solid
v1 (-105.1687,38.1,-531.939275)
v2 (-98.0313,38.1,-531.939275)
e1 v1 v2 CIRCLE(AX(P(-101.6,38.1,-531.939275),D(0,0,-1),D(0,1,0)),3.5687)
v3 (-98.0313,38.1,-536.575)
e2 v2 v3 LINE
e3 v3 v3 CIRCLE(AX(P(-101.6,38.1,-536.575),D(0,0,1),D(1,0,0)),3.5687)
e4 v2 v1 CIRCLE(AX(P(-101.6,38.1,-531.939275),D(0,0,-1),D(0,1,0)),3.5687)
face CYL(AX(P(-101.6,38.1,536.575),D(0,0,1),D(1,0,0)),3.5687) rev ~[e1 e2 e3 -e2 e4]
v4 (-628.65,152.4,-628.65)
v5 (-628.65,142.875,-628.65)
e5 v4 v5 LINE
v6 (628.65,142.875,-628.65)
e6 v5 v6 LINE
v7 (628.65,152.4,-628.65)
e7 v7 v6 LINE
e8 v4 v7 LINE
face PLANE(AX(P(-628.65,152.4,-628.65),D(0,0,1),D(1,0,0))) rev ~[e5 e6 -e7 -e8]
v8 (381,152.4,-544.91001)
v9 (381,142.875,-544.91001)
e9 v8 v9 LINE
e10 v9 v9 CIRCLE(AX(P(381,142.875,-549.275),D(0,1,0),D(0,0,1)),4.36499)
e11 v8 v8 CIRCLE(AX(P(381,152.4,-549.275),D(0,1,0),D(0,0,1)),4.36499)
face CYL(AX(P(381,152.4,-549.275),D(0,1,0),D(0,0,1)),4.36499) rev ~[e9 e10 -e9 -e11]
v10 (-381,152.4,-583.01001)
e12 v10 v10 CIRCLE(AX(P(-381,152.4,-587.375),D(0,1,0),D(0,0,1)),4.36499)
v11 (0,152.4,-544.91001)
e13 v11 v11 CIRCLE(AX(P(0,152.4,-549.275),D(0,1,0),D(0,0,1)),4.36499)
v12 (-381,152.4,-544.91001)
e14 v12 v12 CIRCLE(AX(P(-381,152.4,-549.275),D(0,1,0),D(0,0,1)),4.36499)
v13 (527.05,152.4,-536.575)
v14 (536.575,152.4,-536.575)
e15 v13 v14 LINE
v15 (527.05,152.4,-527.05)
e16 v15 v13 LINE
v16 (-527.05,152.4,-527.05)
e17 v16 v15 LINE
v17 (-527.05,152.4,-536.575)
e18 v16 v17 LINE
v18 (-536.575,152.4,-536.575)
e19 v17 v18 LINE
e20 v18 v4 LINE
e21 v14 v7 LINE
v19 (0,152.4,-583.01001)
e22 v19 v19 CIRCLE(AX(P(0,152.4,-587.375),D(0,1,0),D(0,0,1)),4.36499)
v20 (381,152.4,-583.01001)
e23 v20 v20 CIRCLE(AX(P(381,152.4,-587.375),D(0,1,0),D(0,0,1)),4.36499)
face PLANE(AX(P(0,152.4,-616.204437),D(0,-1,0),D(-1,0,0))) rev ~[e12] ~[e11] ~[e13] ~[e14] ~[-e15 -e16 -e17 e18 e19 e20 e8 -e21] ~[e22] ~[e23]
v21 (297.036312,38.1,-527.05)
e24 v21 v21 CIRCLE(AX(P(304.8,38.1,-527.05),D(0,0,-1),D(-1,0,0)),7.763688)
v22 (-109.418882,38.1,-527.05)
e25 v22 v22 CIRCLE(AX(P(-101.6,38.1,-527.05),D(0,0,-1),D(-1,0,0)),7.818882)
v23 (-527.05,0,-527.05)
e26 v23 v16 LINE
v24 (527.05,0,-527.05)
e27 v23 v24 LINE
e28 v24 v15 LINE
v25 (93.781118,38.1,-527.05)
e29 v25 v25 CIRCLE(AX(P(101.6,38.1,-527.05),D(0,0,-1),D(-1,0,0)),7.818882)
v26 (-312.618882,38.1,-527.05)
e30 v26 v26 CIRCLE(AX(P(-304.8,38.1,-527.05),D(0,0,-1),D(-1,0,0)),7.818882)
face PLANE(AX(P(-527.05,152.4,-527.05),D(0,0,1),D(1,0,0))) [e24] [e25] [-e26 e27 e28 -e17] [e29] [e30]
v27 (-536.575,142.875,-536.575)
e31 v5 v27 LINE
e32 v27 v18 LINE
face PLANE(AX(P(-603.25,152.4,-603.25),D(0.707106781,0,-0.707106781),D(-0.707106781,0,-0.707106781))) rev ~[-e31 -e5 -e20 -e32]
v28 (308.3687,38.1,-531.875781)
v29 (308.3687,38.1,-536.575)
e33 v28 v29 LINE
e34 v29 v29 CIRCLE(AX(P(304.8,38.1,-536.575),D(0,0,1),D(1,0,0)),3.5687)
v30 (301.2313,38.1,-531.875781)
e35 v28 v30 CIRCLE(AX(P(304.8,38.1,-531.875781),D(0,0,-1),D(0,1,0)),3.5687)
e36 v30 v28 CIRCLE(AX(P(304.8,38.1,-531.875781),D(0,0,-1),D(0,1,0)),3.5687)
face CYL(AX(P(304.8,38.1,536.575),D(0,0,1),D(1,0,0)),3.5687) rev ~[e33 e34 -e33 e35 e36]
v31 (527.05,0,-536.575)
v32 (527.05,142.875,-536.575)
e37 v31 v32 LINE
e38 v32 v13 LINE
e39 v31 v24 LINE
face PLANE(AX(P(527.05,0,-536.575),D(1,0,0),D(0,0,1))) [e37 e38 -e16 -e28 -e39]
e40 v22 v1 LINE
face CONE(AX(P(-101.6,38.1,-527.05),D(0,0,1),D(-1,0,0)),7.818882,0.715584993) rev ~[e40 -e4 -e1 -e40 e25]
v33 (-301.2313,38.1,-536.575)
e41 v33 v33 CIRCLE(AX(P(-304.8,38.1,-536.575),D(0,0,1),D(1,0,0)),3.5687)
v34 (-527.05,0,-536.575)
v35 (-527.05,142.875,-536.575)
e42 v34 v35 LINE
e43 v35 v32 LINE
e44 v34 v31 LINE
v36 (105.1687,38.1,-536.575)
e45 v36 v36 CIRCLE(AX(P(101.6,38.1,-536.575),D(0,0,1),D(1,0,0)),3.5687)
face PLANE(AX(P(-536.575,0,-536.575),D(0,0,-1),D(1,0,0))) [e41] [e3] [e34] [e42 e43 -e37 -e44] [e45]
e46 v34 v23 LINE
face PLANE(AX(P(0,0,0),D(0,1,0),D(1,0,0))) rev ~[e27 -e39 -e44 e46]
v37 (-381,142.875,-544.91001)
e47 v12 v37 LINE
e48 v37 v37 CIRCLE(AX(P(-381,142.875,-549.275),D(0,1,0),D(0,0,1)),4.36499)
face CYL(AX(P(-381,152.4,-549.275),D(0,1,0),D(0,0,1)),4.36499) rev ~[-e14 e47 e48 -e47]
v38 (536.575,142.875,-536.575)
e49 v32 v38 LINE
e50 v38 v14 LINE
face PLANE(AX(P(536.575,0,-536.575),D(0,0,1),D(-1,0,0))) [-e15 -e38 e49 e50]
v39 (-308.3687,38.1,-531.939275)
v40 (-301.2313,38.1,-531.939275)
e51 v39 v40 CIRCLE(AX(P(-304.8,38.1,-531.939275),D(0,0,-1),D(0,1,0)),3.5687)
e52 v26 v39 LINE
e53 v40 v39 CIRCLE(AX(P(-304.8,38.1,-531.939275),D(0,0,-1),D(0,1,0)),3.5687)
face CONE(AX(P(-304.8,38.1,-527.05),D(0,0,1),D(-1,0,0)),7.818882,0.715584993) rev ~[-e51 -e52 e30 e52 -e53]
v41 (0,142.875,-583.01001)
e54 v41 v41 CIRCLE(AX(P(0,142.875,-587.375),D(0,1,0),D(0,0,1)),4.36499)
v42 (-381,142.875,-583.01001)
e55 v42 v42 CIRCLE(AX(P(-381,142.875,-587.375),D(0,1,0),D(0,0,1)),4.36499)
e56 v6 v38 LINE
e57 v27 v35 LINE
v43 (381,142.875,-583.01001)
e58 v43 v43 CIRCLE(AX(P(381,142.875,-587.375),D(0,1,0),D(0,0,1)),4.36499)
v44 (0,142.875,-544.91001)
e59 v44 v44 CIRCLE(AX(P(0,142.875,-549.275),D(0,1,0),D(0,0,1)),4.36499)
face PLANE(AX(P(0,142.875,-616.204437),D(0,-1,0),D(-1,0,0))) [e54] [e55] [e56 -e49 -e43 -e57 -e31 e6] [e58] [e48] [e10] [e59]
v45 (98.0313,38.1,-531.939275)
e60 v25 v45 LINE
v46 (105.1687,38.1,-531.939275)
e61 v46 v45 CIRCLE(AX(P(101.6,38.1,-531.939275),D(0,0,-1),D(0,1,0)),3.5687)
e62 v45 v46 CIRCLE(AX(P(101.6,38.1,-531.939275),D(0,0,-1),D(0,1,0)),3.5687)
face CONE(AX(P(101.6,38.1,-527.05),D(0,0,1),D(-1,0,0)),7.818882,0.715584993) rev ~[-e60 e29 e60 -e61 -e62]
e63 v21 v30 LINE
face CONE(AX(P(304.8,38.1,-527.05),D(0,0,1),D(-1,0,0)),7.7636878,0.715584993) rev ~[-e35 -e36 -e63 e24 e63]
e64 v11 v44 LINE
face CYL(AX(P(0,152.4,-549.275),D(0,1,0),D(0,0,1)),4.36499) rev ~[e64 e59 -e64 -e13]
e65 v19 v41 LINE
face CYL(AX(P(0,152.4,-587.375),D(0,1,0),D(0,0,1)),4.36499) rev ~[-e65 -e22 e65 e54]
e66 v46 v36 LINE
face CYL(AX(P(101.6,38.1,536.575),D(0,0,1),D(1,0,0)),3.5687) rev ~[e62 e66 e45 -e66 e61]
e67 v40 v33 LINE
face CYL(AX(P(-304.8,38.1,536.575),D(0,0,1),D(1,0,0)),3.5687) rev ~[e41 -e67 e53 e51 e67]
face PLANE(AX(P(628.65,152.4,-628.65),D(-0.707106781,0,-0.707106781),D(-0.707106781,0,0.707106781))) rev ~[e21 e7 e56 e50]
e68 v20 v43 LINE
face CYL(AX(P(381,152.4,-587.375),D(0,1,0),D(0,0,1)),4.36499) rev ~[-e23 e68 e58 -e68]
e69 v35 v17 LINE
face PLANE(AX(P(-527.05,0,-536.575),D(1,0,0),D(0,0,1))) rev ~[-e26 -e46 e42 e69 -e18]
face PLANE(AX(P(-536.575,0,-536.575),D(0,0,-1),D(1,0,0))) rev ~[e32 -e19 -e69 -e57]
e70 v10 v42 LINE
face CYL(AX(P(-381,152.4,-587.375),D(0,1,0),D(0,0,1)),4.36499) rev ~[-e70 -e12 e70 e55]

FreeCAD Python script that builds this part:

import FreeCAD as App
import Part
import Sketcher

V = App.Vector
Q = App.Units.Quantity


def add_polygon(sketch, points):
    """Adds a closed chain of lines whose ends are joined by coincident constraints."""
    first, n = sketch.GeometryCount, len(points)
    for a, b in zip(points, points[1:] + points[:1]):
        sketch.addGeometry(Part.LineSegment(App.Vector(*a, 0), App.Vector(*b, 0)), False)
    for i in range(n):
        sketch.addConstraint(Sketcher.Constraint("Coincident", first + i, 2, first + (i + 1) % n, 1))

doc = App.newDocument("Part")
params = doc.addObject("Spreadsheet::Sheet", "Params")
for row, (alias, value) in enumerate([
    ("sketch1_width", "42.25 in"),
    ("pad1_length", "6 in"),
    ("sketch2_width", "41.5 in"),
    ("sketch2_width2", "42.25 in"),
    ("pocket1_length", "5.625 in"),
    ("sketch3_width", "53.5 in"),
    ("sketch3_width2", "42.25 in"),
    ("pad2_length", "0.375 in"),
    ("sketch4_width", "41.5 in"),
    ("pocket2_length", "0.375 in"),
    ("sketch5_diameter", "0.34375 in"),
    ("pocket3_length", "0.375 in"),
    ("pocket4_length", "50 in"),
    ("pocket5_length", "50 in"),
    ("sketch8_diameter", "0.281 in"),
    ("pocket6_length", "50 in"),
    ("sketch9_width", "53.5 in"),
    ("sketch9_width2", "47.5 in"),
    ("pocket7_length", "0.375 in"),
    ("sketch10_width", "47.5 in"),
    ("sketch10_width2", "41.5 in"),
    ("pocket8_length", "10 in"),
    ("sketch11_width", "0.375 in"),
    ("sketch12_diameter", "0.281 in"),
    ("hole_diameter", "0.281 in"),
    ("hole_csink_diameter", "15.637764 mm"),
    ("sketch13_diameter", "0.281 in"),
    ("hole2_diameter", "0.281 in"),
    ("hole2_csink_diameter", "15.637764 mm"),
    ("sketch14_diameter", "0.281 in"),
    ("hole3_diameter", "0.281 in"),
    ("hole3_csink_diameter", "15.637764 mm"),
    ("sketch15_diameter", "0.281 in"),
    ("hole4_diameter", "0.281 in"),
    ("hole4_csink_diameter", "15.527376 mm"),
    ("sketch16_width", "47.5 in"),
    ("sketch16_width2", "49.5 in"),
    ("pad3_length", "0.375 in"),
], start=1):
    params.set(f"A{row}", alias)
    params.set(f"B{row}", "=" + value)
    params.setAlias(f"B{row}", alias)

body = doc.addObject("PartDesign::Body", "Body")

# Sketch on XZ plane
sketch1 = body.newObject("Sketcher::SketchObject", "Sketch")
sketch1.AttachmentSupport = (doc.getObject("XZ_Plane"), [""])
sketch1.MapMode = "FlatFace"
add_polygon(sketch1, [(-536.575, -536.575), (-536.575, 536.575), (536.575, 536.575), (536.575, -536.575)])  # lines 0-3
sketch1.addConstraint(Sketcher.Constraint("Vertical", 0))
sketch1.addConstraint(Sketcher.Constraint("Horizontal", 1))
sketch1.addConstraint(Sketcher.Constraint("Vertical", 2))
sketch1.addConstraint(Sketcher.Constraint("Horizontal", 3))
sketch1.addConstraint(Sketcher.Constraint("Symmetric", 0, 2, 2, 2, -1, 1))
sketch1.addConstraint(Sketcher.Constraint("Equal", 3, 0))
sketch1.addConstraint(Sketcher.Constraint("DistanceX", 1, 1, 1, 2, Q("42.25 in")))
sketch1.setExpression("Constraints[10]", "Params.sketch1_width")
pad1 = body.newObject("PartDesign::Pad", "Pad")
pad1.Profile = sketch1
pad1.setExpression("Length", "Params.pad1_length")
pad1.Reversed = True

# Sketch on XZ plane
sketch2 = body.newObject("Sketcher::SketchObject", "Sketch001")
sketch2.AttachmentSupport = (doc.getObject("XZ_Plane"), [""])
sketch2.MapMode = "FlatFace"
sketch2.AttachmentOffset = App.Placement(V(0, 0, -6 * 25.4), App.Rotation())
add_polygon(sketch2, [(-690.105, -690.105), (-690.105, 690.105), (690.105, 690.105), (690.105, -690.105)])  # lines 0-3
add_polygon(sketch2, [(536.575, 536.575), (-536.575, 536.575), (-536.575, -536.575), (536.575, -536.575)])  # lines 4-7
add_polygon(sketch2, [(-527.05, -527.05), (-527.05, 527.05), (527.05, 527.05), (527.05, -527.05)])  # lines 8-11
sketch2.addConstraint(Sketcher.Constraint("Vertical", 0))
sketch2.addConstraint(Sketcher.Constraint("Horizontal", 1))
sketch2.addConstraint(Sketcher.Constraint("Vertical", 2))
sketch2.addConstraint(Sketcher.Constraint("Horizontal", 3))
sketch2.addConstraint(Sketcher.Constraint("Horizontal", 4))
sketch2.addConstraint(Sketcher.Constraint("Vertical", 5))
sketch2.addConstraint(Sketcher.Constraint("Horizontal", 6))
sketch2.addConstraint(Sketcher.Constraint("Vertical", 7))
sketch2.addConstraint(Sketcher.Constraint("Vertical", 8))
sketch2.addConstraint(Sketcher.Constraint("Horizontal", 9))
sketch2.addConstraint(Sketcher.Constraint("Vertical", 10))
sketch2.addConstraint(Sketcher.Constraint("Horizontal", 11))
sketch2.addConstraint(Sketcher.Constraint("Symmetric", 0, 2, 2, 2, -1, 1))
sketch2.addConstraint(Sketcher.Constraint("Symmetric", 4, 2, 6, 2, -1, 1))
sketch2.addConstraint(Sketcher.Constraint("Symmetric", 8, 2, 10, 2, -1, 1))
sketch2.addConstraint(Sketcher.Constraint("Equal", 3, 0))
sketch2.addConstraint(Sketcher.Constraint("Equal", 6, 5))
sketch2.addConstraint(Sketcher.Constraint("Equal", 11, 8))
sketch2.addConstraint(Sketcher.Constraint("DistanceX", 9, 1, 9, 2, Q("41.5 in")))
sketch2.addConstraint(Sketcher.Constraint("DistanceX", 4, 2, 4, 1, Q("42.25 in")))
sketch2.addConstraint(Sketcher.Constraint("DistanceX", 1, 1, 1, 2, Q("1380.21 mm")))
sketch2.setExpression("Constraints[30]", "Params.sketch2_width")
sketch2.setExpression("Constraints[31]", "Params.sketch2_width2")
pocket1 = body.newObject("PartDesign::Pocket", "Pocket")
pocket1.Profile = sketch2
pocket1.setExpression("Length", "Params.pocket1_length")
pocket1.Reversed = True

# Sketch on XZ plane
sketch3 = body.newObject("Sketcher::SketchObject", "Sketch002")
sketch3.AttachmentSupport = (doc.getObject("XZ_Plane"), [""])
sketch3.MapMode = "FlatFace"
sketch3.AttachmentOffset = App.Placement(V(0, 0, -6 * 25.4), App.Rotation())
add_polygon(sketch3, [(-679.45, -679.45), (-679.45, 679.45), (679.45, 679.45), (679.45, -679.45)])  # lines 0-3
add_polygon(sketch3, [(536.575, 536.575), (-536.575, 536.575), (-536.575, -536.575), (536.575, -536.575)])  # lines 4-7
sketch3.addConstraint(Sketcher.Constraint("Vertical", 0))
sketch3.addConstraint(Sketcher.Constraint("Horizontal", 1))
sketch3.addConstraint(Sketcher.Constraint("Vertical", 2))
sketch3.addConstraint(Sketcher.Constraint("Horizontal", 3))
sketch3.addConstraint(Sketcher.Constraint("Horizontal", 4))
sketch3.addConstraint(Sketcher.Constraint("Vertical", 5))
sketch3.addConstraint(Sketcher.Constraint("Horizontal", 6))
sketch3.addConstraint(Sketcher.Constraint("Vertical", 7))
sketch3.addConstraint(Sketcher.Constraint("Symmetric", 0, 2, 2, 2, -1, 1))
sketch3.addConstraint(Sketcher.Constraint("Symmetric", 4, 2, 6, 2, -1, 1))
sketch3.addConstraint(Sketcher.Constraint("Equal", 3, 0))
sketch3.addConstraint(Sketcher.Constraint("Equal", 6, 5))
sketch3.addConstraint(Sketcher.Constraint("DistanceX", 1, 1, 1, 2, Q("53.5 in")))
sketch3.addConstraint(Sketcher.Constraint("DistanceX", 4, 2, 4, 1, Q("42.25 in")))
sketch3.setExpression("Constraints[20]", "Params.sketch3_width")
sketch3.setExpression("Constraints[21]", "Params.sketch3_width2")
pad2 = body.newObject("PartDesign::Pad", "Pad001")
pad2.Profile = sketch3
pad2.setExpression("Length", "Params.pad2_length")

# Sketch on XZ plane
sketch4 = body.newObject("Sketcher::SketchObject", "Sketch003")
sketch4.AttachmentSupport = (doc.getObject("XZ_Plane"), [""])
sketch4.MapMode = "FlatFace"
sketch4.AttachmentOffset = App.Placement(V(0, 0, -0.375 * 25.4), App.Rotation())
add_polygon(sketch4, [(-527.05, -527.05), (-527.05, 527.05), (527.05, 527.05), (527.05, -527.05)])  # lines 0-3
sketch4.addConstraint(Sketcher.Constraint("Vertical", 0))
sketch4.addConstraint(Sketcher.Constraint("Horizontal", 1))
sketch4.addConstraint(Sketcher.Constraint("Vertical", 2))
sketch4.addConstraint(Sketcher.Constraint("Horizontal", 3))
sketch4.addConstraint(Sketcher.Constraint("Symmetric", 0, 2, 2, 2, -1, 1))
sketch4.addConstraint(Sketcher.Constraint("Equal", 3, 0))
sketch4.addConstraint(Sketcher.Constraint("DistanceX", 1, 1, 1, 2, Q("41.5 in")))
sketch4.setExpression("Constraints[10]", "Params.sketch4_width")
pocket2 = body.newObject("PartDesign::Pocket", "Pocket001")
pocket2.Profile = sketch4
pocket2.setExpression("Length", "Params.pocket2_length")
pocket2.Reversed = True

# Sketch on XZ plane
sketch5 = body.newObject("Sketcher::SketchObject", "Sketch004")
sketch5.AttachmentSupport = (doc.getObject("XZ_Plane"), [""])
sketch5.MapMode = "FlatFace"
sketch5.AttachmentOffset = App.Placement(V(0, 0, -6 * 25.4), App.Rotation())
sketch5.addGeometry(Part.Circle(V(549.275, -38.1, 0), V(0, 0, 1), 4.365625), False)
sketch5.addGeometry(Part.Circle(V(587.375, 38.1, 0), V(0, 0, 1), 4.365625), False)
sketch5.addGeometry(Part.Circle(V(549.275, 38.1, 0), V(0, 0, 1), 4.365625), False)
sketch5.addGeometry(Part.Circle(V(587.375, -38.1, 0), V(0, 0, 1), 4.365625), False)
sketch5.addGeometry(Part.Circle(V(549.275, -419.1, 0), V(0, 0, 1), 4.365625), False)
sketch5.addGeometry(Part.Circle(V(549.275, -342.9, 0), V(0, 0, 1), 4.365625), False)
sketch5.addGeometry(Part.Circle(V(587.375, -342.9, 0), V(0, 0, 1), 4.365625), False)
sketch5.addGeometry(Part.Circle(V(587.375, -419.1, 0), V(0, 0, 1), 4.365625), False)
sketch5.addGeometry(Part.Circle(V(587.375, 419.1, 0), V(0, 0, 1), 4.365625), False)
sketch5.addGeometry(Part.Circle(V(549.275, 419.1, 0), V(0, 0, 1), 4.365625), False)
sketch5.addGeometry(Part.Circle(V(587.375, 342.9, 0), V(0, 0, 1), 4.365625), False)
sketch5.addGeometry(Part.Circle(V(549.275, 342.9, 0), V(0, 0, 1), 4.365625), False)
sketch5.addGeometry(Part.Circle(V(-549.275, 38.1, 0), V(0, 0, 1), 4.365625), False)
sketch5.addGeometry(Part.Circle(V(-549.275, -419.1, 0), V(0, 0, 1), 4.365625), False)
sketch5.addGeometry(Part.Circle(V(-549.275, -342.9, 0), V(0, 0, 1), 4.365625), False)
sketch5.addGeometry(Part.Circle(V(-549.275, 342.9, 0), V(0, 0, 1), 4.365625), False)
sketch5.addGeometry(Part.Circle(V(-549.275, -38.1, 0), V(0, 0, 1), 4.365625), False)
sketch5.addGeometry(Part.Circle(V(-549.275, 419.1, 0), V(0, 0, 1), 4.365625), False)
sketch5.addGeometry(Part.Circle(V(-342.9, 549.275, 0), V(0, 0, 1), 4.365625), False)
sketch5.addGeometry(Part.Circle(V(-38.1, 549.275, 0), V(0, 0, 1), 4.365625), False)
sketch5.addGeometry(Part.Circle(V(419.1, 549.275, 0), V(0, 0, 1), 4.365625), False)
sketch5.addGeometry(Part.Circle(V(342.9, 549.275, 0), V(0, 0, 1), 4.365625), False)
sketch5.addGeometry(Part.Circle(V(38.1, 549.275, 0), V(0, 0, 1), 4.365625), False)
sketch5.addGeometry(Part.Circle(V(-419.1, 549.275, 0), V(0, 0, 1), 4.365625), False)
sketch5.addGeometry(Part.Circle(V(-584.2, 342.9, 0), V(0, 0, 1), 4.365625), False)
sketch5.addGeometry(Part.Circle(V(-584.2, 419.1, 0), V(0, 0, 1), 4.365625), False)
sketch5.addGeometry(Part.Circle(V(-584.2, -342.9, 0), V(0, 0, 1), 4.365625), False)
sketch5.addGeometry(Part.Circle(V(-584.2, 38.1, 0), V(0, 0, 1), 4.365625), False)
sketch5.addGeometry(Part.Circle(V(-584.2, -419.1, 0), V(0, 0, 1), 4.365625), False)
sketch5.addGeometry(Part.Circle(V(-584.2, -38.1, 0), V(0, 0, 1), 4.365625), False)
sketch5.addGeometry(Part.Circle(V(-342.9, 584.2, 0), V(0, 0, 1), 4.365625), False)
sketch5.addGeometry(Part.Circle(V(-419.1, 584.2, 0), V(0, 0, 1), 4.365625), False)
sketch5.addGeometry(Part.Circle(V(38.1, 584.2, 0), V(0, 0, 1), 4.365625), False)
sketch5.addGeometry(Part.Circle(V(419.1, 584.2, 0), V(0, 0, 1), 4.365625), False)
sketch5.addGeometry(Part.Circle(V(-38.1, 584.2, 0), V(0, 0, 1), 4.365625), False)
sketch5.addGeometry(Part.Circle(V(342.9, 584.2, 0), V(0, 0, 1), 4.365625), False)
sketch5.addGeometry(Part.Circle(V(-381, -587.375, 0), V(0, 0, 1), 4.36499), False)
sketch5.addGeometry(Part.Circle(V(-381, -549.275, 0), V(0, 0, 1), 4.36499), False)
sketch5.addGeometry(Part.Circle(V(0, -587.375, 0), V(0, 0, 1), 4.36499), False)
sketch5.addGeometry(Part.Circle(V(0, -549.275, 0), V(0, 0, 1), 4.36499), False)
sketch5.addGeometry(Part.Circle(V(381, -587.375, 0), V(0, 0, 1), 4.36499), False)
sketch5.addGeometry(Part.Circle(V(381, -549.275, 0), V(0, 0, 1), 4.36499), False)
sketch5.addConstraint(Sketcher.Constraint("Equal", 0, 1))
sketch5.addConstraint(Sketcher.Constraint("Equal", 1, 2))
sketch5.addConstraint(Sketcher.Constraint("Equal", 2, 3))
sketch5.addConstraint(Sketcher.Constraint("Equal", 3, 4))
sketch5.addConstraint(Sketcher.Constraint("Equal", 4, 5))
sketch5.addConstraint(Sketcher.Constraint("Equal", 5, 6))
sketch5.addConstraint(Sketcher.Constraint("Equal", 6, 7))
sketch5.addConstraint(Sketcher.Constraint("Equal", 7, 8))
sketch5.addConstraint(Sketcher.Constraint("Equal", 8, 9))
sketch5.addConstraint(Sketcher.Constraint("Equal", 9, 10))
sketch5.addConstraint(Sketcher.Constraint("Equal", 10, 11))
sketch5.addConstraint(Sketcher.Constraint("Equal", 11, 12))
sketch5.addConstraint(Sketcher.Constraint("Equal", 12, 13))
sketch5.addConstraint(Sketcher.Constraint("Equal", 13, 14))
sketch5.addConstraint(Sketcher.Constraint("Equal", 14, 15))
sketch5.addConstraint(Sketcher.Constraint("Equal", 15, 16))
sketch5.addConstraint(Sketcher.Constraint("Equal", 16, 17))
sketch5.addConstraint(Sketcher.Constraint("Equal", 17, 18))
sketch5.addConstraint(Sketcher.Constraint("Equal", 18, 19))
sketch5.addConstraint(Sketcher.Constraint("Equal", 19, 20))
sketch5.addConstraint(Sketcher.Constraint("Equal", 20, 21))
sketch5.addConstraint(Sketcher.Constraint("Equal", 21, 22))
sketch5.addConstraint(Sketcher.Constraint("Equal", 22, 23))
sketch5.addConstraint(Sketcher.Constraint("Equal", 23, 24))
sketch5.addConstraint(Sketcher.Constraint("Equal", 24, 25))
sketch5.addConstraint(Sketcher.Constraint("Equal", 25, 26))
sketch5.addConstraint(Sketcher.Constraint("Equal", 26, 27))
sketch5.addConstraint(Sketcher.Constraint("Equal", 27, 28))
sketch5.addConstraint(Sketcher.Constraint("Equal", 28, 29))
sketch5.addConstraint(Sketcher.Constraint("Equal", 29, 30))
sketch5.addConstraint(Sketcher.Constraint("Equal", 30, 31))
sketch5.addConstraint(Sketcher.Constraint("Equal", 31, 32))
sketch5.addConstraint(Sketcher.Constraint("Equal", 32, 33))
sketch5.addConstraint(Sketcher.Constraint("Equal", 33, 34))
sketch5.addConstraint(Sketcher.Constraint("Equal", 34, 35))
sketch5.addConstraint(Sketcher.Constraint("Equal", 36, 37))
sketch5.addConstraint(Sketcher.Constraint("Equal", 37, 38))
sketch5.addConstraint(Sketcher.Constraint("Equal", 38, 39))
sketch5.addConstraint(Sketcher.Constraint("Equal", 39, 40))
sketch5.addConstraint(Sketcher.Constraint("Equal", 40, 41))
sketch5.addConstraint(Sketcher.Constraint("Symmetric", 0, 3, 12, 3, -1, 1))
sketch5.addConstraint(Sketcher.Constraint("Symmetric", 9, 3, 13, 3, -1, 1))
sketch5.addConstraint(Sketcher.Constraint("Symmetric", 11, 3, 14, 3, -1, 1))
sketch5.addConstraint(Sketcher.Constraint("Symmetric", 5, 3, 15, 3, -1, 1))
sketch5.addConstraint(Sketcher.Constraint("Symmetric", 2, 3, 16, 3, -1, 1))
sketch5.addConstraint(Sketcher.Constraint("Symmetric", 4, 3, 17, 3, -1, 1))
sketch5.addConstraint(Sketcher.Constraint("Symmetric", 2, 3, 12, 3, -2))
sketch5.addConstraint(Sketcher.Constraint("Symmetric", 4, 3, 13, 3, -2))
sketch5.addConstraint(Sketcher.Constraint("Symmetric", 5, 3, 14, 3, -2))
sketch5.addConstraint(Sketcher.Constraint("Symmetric", 18, 3, 21, 3, -2))
sketch5.addConstraint(Sketcher.Constraint("Symmetric", 19, 3, 22, 3, -2))
sketch5.addConstraint(Sketcher.Constraint("Symmetric", 20, 3, 23, 3, -2))
sketch5.addConstraint(Sketcher.Constraint("Symmetric", 31, 3, 33, 3, -2))
sketch5.addConstraint(Sketcher.Constraint("Symmetric", 32, 3, 34, 3, -2))
sketch5.addConstraint(Sketcher.Constraint("Symmetric", 30, 3, 35, 3, -2))
sketch5.addConstraint(Sketcher.Constraint("Symmetric", 36, 3, 40, 3, -2))
sketch5.addConstraint(Sketcher.Constraint("Symmetric", 37, 3, 41, 3, -2))
sketch5.addConstraint(Sketcher.Constraint("Symmetric", 1, 3, 3, 3, -1))
sketch5.addConstraint(Sketcher.Constraint("Symmetric", 7, 3, 8, 3, -1))
sketch5.addConstraint(Sketcher.Constraint("Symmetric", 6, 3, 10, 3, -1))
sketch5.addConstraint(Sketcher.Constraint("Symmetric", 24, 3, 26, 3, -1))
sketch5.addConstraint(Sketcher.Constraint("Symmetric", 25, 3, 28, 3, -1))
sketch5.addConstraint(Sketcher.Constraint("Symmetric", 27, 3, 29, 3, -1))
sketch5.addConstraint(Sketcher.Constraint("PointOnObject", 38, 3, -2))
sketch5.addConstraint(Sketcher.Constraint("PointOnObject", 39, 3, -2))
sketch5.addConstraint(Sketcher.Constraint("Horizontal", 1, 3, 2, 3))
sketch5.addConstraint(Sketcher.Constraint("Horizontal", 5, 3, 6, 3))
sketch5.addConstraint(Sketcher.Constraint("Horizontal", 4, 3, 7, 3))
sketch5.addConstraint(Sketcher.Constraint("Horizontal", 18, 3, 19, 3))
sketch5.addConstraint(Sketcher.Constraint("Horizontal", 19, 3, 20, 3))
sketch5.addConstraint(Sketcher.Constraint("Horizontal", 15, 3, 24, 3))
sketch5.addConstraint(Sketcher.Constraint("Horizontal", 17, 3, 25, 3))
sketch5.addConstraint(Sketcher.Constraint("Horizontal", 12, 3, 27, 3))
sketch5.addConstraint(Sketcher.Constraint("Horizontal", 30, 3, 31, 3))
sketch5.addConstraint(Sketcher.Constraint("Horizontal", 31, 3, 32, 3))
sketch5.addConstraint(Sketcher.Constraint("Horizontal", 36, 3, 38, 3))
sketch5.addConstraint(Sketcher.Constraint("Horizontal", 37, 3, 39, 3))
sketch5.addConstraint(Sketcher.Constraint("Vertical", 2, 3, 4, 3))
sketch5.addConstraint(Sketcher.Constraint("Vertical", 4, 3, 5, 3))
sketch5.addConstraint(Sketcher.Constraint("Vertical", 3, 3, 6, 3))
sketch5.addConstraint(Sketcher.Constraint("Vertical", 6, 3, 7, 3))
sketch5.addConstraint(Sketcher.Constraint("Vertical", 24, 3, 25, 3))
sketch5.addConstraint(Sketcher.Constraint("Vertical", 26, 3, 27, 3))
sketch5.addConstraint(Sketcher.Constraint("Vertical", 18, 3, 30, 3))
sketch5.addConstraint(Sketcher.Constraint("Vertical", 23, 3, 31, 3))
sketch5.addConstraint(Sketcher.Constraint("Vertical", 22, 3, 32, 3))
sketch5.addConstraint(Sketcher.Constraint("Vertical", 36, 3, 37, 3))
sketch5.addConstraint(Sketcher.Constraint("Diameter", 0, Q("0.34375 in")))
sketch5.addConstraint(Sketcher.Constraint("DistanceX", 24, 3, -1, 1, Q("23 in")))
sketch5.addConstraint(Sketcher.Constraint("DistanceY", -1, 1, 30, 3, Q("23 in")))
sketch5.addConstraint(Sketcher.Constraint("DistanceX", 36, 3, -1, 1, Q("15 in")))
sketch5.addConstraint(Sketcher.Constraint("DistanceY", 0, 3, 1, 3, Q("3 in")))
sketch5.addConstraint(Sketcher.Constraint("DistanceY", 4, 3, 0, 3, Q("15 in")))
sketch5.addConstraint(Sketcher.Constraint("DistanceY", 4, 3, 5, 3, Q("3 in")))
sketch5.addConstraint(Sketcher.Constraint("DistanceX", 18, 3, 19, 3, Q("12 in")))
sketch5.addConstraint(Sketcher.Constraint("DistanceX", 19, 3, 20, 3, Q("18 in")))
sketch5.addConstraint(Sketcher.Constraint("DistanceX", 21, 3, 20, 3, Q("3 in")))
sketch5.addConstraint(Sketcher.Constraint("Diameter", 36, Q("0.3437 in")))
sketch5.addConstraint(Sketcher.Constraint("DistanceX", 0, 3, 1, 3, Q("1.5 in")))
sketch5.addConstraint(Sketcher.Constraint("DistanceY", 36, 3, 37, 3, Q("1.5 in")))
sketch5.addConstraint(Sketcher.Constraint("DistanceX", 12, 3, 2, 3, Q("43.25 in")))
sketch5.addConstraint(Sketcher.Constraint("DistanceY", -1, 1, 18, 3, Q("21.625 in")))
sketch5.addConstraint(Sketcher.Constraint("DistanceY", 36, 3, -1, 1, Q("23.125 in")))
sketch5.setExpression("Constraints[87]", "Params.sketch5_diameter")
pocket3 = body.newObject("PartDesign::Pocket", "Pocket002")
pocket3.Profile = sketch5
pocket3.setExpression("Length", "Params.pocket3_length")
pocket3.Reversed = True

# Sketch on YZ plane
sketch6 = body.newObject("Sketcher::SketchObject", "Sketch005")
sketch6.AttachmentSupport = (doc.getObject("YZ_Plane"), [""])
sketch6.MapMode = "FlatFace"
sketch6.AttachmentOffset = App.Placement(V(0, 0, -21.125 * 25.4), App.Rotation())
sketch6.addGeometry(Part.Circle(V(38.1, 371.475, 0), V(0, 0, 1), 2.50063), False)
sketch6.addConstraint(Sketcher.Constraint("Diameter", 0, Q("0.1969 in")))
sketch6.addConstraint(Sketcher.Constraint("DistanceX", -1, 1, 0, 3, Q("1.5 in")))
sketch6.addConstraint(Sketcher.Constraint("DistanceY", -1, 1, 0, 3, Q("14.625 in")))
pocket4 = body.newObject("PartDesign::Pocket", "Pocket003")
pocket4.Profile = sketch6
pocket4.setExpression("Length", "Params.pocket4_length")
pocket4.Reversed = True

# Sketch on YZ plane
sketch7 = body.newObject("Sketcher::SketchObject", "Sketch006")
sketch7.AttachmentSupport = (doc.getObject("YZ_Plane"), [""])
sketch7.MapMode = "FlatFace"
sketch7.AttachmentOffset = App.Placement(V(0, 0, -21.125 * 25.4), App.Rotation())
sketch7.addGeometry(Part.Circle(V(38.1, -371.475, 0), V(0, 0, 1), 2.50063), False)
sketch7.addGeometry(Part.Circle(V(38.1, -222.885, 0), V(0, 0, 1), 2.50063), False)
sketch7.addGeometry(Part.Circle(V(38.1, -74.295, 0), V(0, 0, 1), 2.50063), False)
sketch7.addGeometry(Part.Circle(V(38.1, 74.295, 0), V(0, 0, 1), 2.50063), False)
sketch7.addGeometry(Part.Circle(V(38.1, 222.885, 0), V(0, 0, 1), 2.50063), False)
sketch7.addConstraint(Sketcher.Constraint("Equal", 0, 1))
sketch7.addConstraint(Sketcher.Constraint("Equal", 1, 2))
sketch7.addConstraint(Sketcher.Constraint("Equal", 2, 3))
sketch7.addConstraint(Sketcher.Constraint("Equal", 3, 4))
sketch7.addConstraint(Sketcher.Constraint("Symmetric", 2, 3, 3, 3, -1))
sketch7.addConstraint(Sketcher.Constraint("Symmetric", 1, 3, 4, 3, -1))
sketch7.addConstraint(Sketcher.Constraint("Vertical", 0, 3, 1, 3))
sketch7.addConstraint(Sketcher.Constraint("Vertical", 1, 3, 2, 3))
sketch7.addConstraint(Sketcher.Constraint("Diameter", 0, Q("0.1969 in")))
sketch7.addConstraint(Sketcher.Constraint("DistanceX", -1, 1, 0, 3, Q("1.5 in")))
sketch7.addConstraint(Sketcher.Constraint("DistanceY", 0, 3, 2, 3, Q("11.7 in")))
sketch7.addConstraint(Sketcher.Constraint("DistanceY", 1, 3, 3, 3, Q("11.7 in")))
sketch7.addConstraint(Sketcher.Constraint("DistanceY", 0, 3, 1, 3, Q("5.85 in")))
pocket5 = body.newObject("PartDesign::Pocket", "Pocket004")
pocket5.Profile = sketch7
pocket5.setExpression("Length", "Params.pocket5_length")
pocket5.Reversed = True

# Sketch on XY plane
sketch8 = body.newObject("Sketcher::SketchObject", "Sketch007")
sketch8.AttachmentSupport = (doc.getObject("XY_Plane"), [""])
sketch8.MapMode = "FlatFace"
sketch8.AttachmentOffset = App.Placement(V(0, 0, 21.125 * 25.4), App.Rotation())
sketch8.addGeometry(Part.Circle(V(-304.8, 38.1, 0), V(0, 0, 1), 3.5687), False)
sketch8.addGeometry(Part.Circle(V(-101.6, 38.1, 0), V(0, 0, 1), 3.5687), False)
sketch8.addGeometry(Part.Circle(V(101.6, 38.1, 0), V(0, 0, 1), 3.5687), False)
sketch8.addGeometry(Part.Circle(V(304.8, 38.1, 0), V(0, 0, 1), 3.5687), False)
sketch8.addConstraint(Sketcher.Constraint("Equal", 0, 1))
sketch8.addConstraint(Sketcher.Constraint("Equal", 1, 2))
sketch8.addConstraint(Sketcher.Constraint("Equal", 2, 3))
sketch8.addConstraint(Sketcher.Constraint("Symmetric", 1, 3, 2, 3, -2))
sketch8.addConstraint(Sketcher.Constraint("Symmetric", 0, 3, 3, 3, -2))
sketch8.addConstraint(Sketcher.Constraint("Horizontal", 0, 3, 1, 3))
sketch8.addConstraint(Sketcher.Constraint("Diameter", 0, Q("0.281 in")))
sketch8.addConstraint(Sketcher.Constraint("DistanceX", 0, 3, -1, 1, Q("12 in")))
sketch8.addConstraint(Sketcher.Constraint("DistanceX", 1, 3, -1, 1, Q("4 in")))
sketch8.addConstraint(Sketcher.Constraint("DistanceY", -1, 1, 0, 3, Q("1.5 in")))
sketch8.setExpression("Constraints[6]", "Params.sketch8_diameter")
pocket6 = body.newObject("PartDesign::Pocket", "Pocket005")
pocket6.Profile = sketch8
pocket6.setExpression("Length", "Params.pocket6_length")

# Sketch on XZ plane
sketch9 = body.newObject("Sketcher::SketchObject", "Sketch008")
sketch9.AttachmentSupport = (doc.getObject("XZ_Plane"), [""])
sketch9.MapMode = "FlatFace"
sketch9.AttachmentOffset = App.Placement(V(0, 0, -6 * 25.4), App.Rotation())
add_polygon(sketch9, [(-679.45, -679.45), (-679.45, 679.45), (679.45, 679.45), (679.45, -679.45)])  # lines 0-3
add_polygon(sketch9, [(603.25, 603.25), (-603.25, 603.25), (-603.25, -603.25), (603.25, -603.25)])  # lines 4-7
sketch9.addConstraint(Sketcher.Constraint("Vertical", 0))
sketch9.addConstraint(Sketcher.Constraint("Horizontal", 1))
sketch9.addConstraint(Sketcher.Constraint("Vertical", 2))
sketch9.addConstraint(Sketcher.Constraint("Horizontal", 3))
sketch9.addConstraint(Sketcher.Constraint("Horizontal", 4))
sketch9.addConstraint(Sketcher.Constraint("Vertical", 5))
sketch9.addConstraint(Sketcher.Constraint("Horizontal", 6))
sketch9.addConstraint(Sketcher.Constraint("Vertical", 7))
sketch9.addConstraint(Sketcher.Constraint("Symmetric", 0, 2, 2, 2, -1, 1))
sketch9.addConstraint(Sketcher.Constraint("Symmetric", 4, 2, 6, 2, -1, 1))
sketch9.addConstraint(Sketcher.Constraint("Equal", 3, 0))
sketch9.addConstraint(Sketcher.Constraint("Equal", 6, 5))
sketch9.addConstraint(Sketcher.Constraint("DistanceX", 1, 1, 1, 2, Q("53.5 in")))
sketch9.addConstraint(Sketcher.Constraint("DistanceX", 4, 2, 4, 1, Q("47.5 in")))
sketch9.setExpression("Constraints[20]", "Params.sketch9_width")
sketch9.setExpression("Constraints[21]", "Params.sketch9_width2")
pocket7 = body.newObject("PartDesign::Pocket", "Pocket006")
pocket7.Profile = sketch9
pocket7.setExpression("Length", "Params.pocket7_length")
pocket7.Reversed = True

# Sketch on XZ plane
sketch10 = body.newObject("Sketcher::SketchObject", "Sketch009")
sketch10.AttachmentSupport = (doc.getObject("XZ_Plane"), [""])
sketch10.MapMode = "FlatFace"
sketch10.AttachmentOffset = App.Placement(V(0, 0, -6 * 25.4), App.Rotation())
add_polygon(sketch10, [(-527.05, 527.05), (-527.05, -527.05), (-603.25, -603.25), (-603.25, 603.25), (603.25, 603.25), (603.25, -603.25), (527.05, -527.05), (527.05, 527.05)])  # lines 0-7
sketch10.addConstraint(Sketcher.Constraint("Vertical", 0))
sketch10.addConstraint(Sketcher.Constraint("Vertical", 2))
sketch10.addConstraint(Sketcher.Constraint("Horizontal", 3))
sketch10.addConstraint(Sketcher.Constraint("Vertical", 4))
sketch10.addConstraint(Sketcher.Constraint("Vertical", 6))
sketch10.addConstraint(Sketcher.Constraint("Horizontal", 7))
sketch10.addConstraint(Sketcher.Constraint("Symmetric", 1, 2, 3, 2, -1, 1))
sketch10.addConstraint(Sketcher.Constraint("Symmetric", 0, 2, 6, 2, -1, 1))
sketch10.addConstraint(Sketcher.Constraint("Perpendicular", 1, 5))
sketch10.addConstraint(Sketcher.Constraint("Horizontal", 1, 2, 4, 2))
sketch10.addConstraint(Sketcher.Constraint("Horizontal", 0, 2, 5, 2))
sketch10.addConstraint(Sketcher.Constraint("Equal", 7, 0))
sketch10.addConstraint(Sketcher.Constraint("DistanceX", 3, 1, 3, 2, Q("47.5 in")))
sketch10.addConstraint(Sketcher.Constraint("DistanceX", 7, 2, 7, 1, Q("41.5 in")))
sketch10.setExpression("Constraints[20]", "Params.sketch10_width")
sketch10.setExpression("Constraints[21]", "Params.sketch10_width2")
pocket8 = body.newObject("PartDesign::Pocket", "Pocket007")
pocket8.Profile = sketch10
pocket8.setExpression("Length", "Params.pocket8_length")
pocket8.Reversed = True

# Sketch on XZ plane
sketch11 = body.newObject("Sketcher::SketchObject", "Sketch010")
sketch11.AttachmentSupport = (doc.getObject("XZ_Plane"), [""])
sketch11.MapMode = "FlatFace"
add_polygon(sketch11, [(-527.05, -527.05), (-536.575, -536.575), (-527.05, -536.575)])  # lines 0-2
add_polygon(sketch11, [(527.05, -536.575), (536.575, -536.575), (527.05, -527.05)])  # lines 3-5
sketch11.addConstraint(Sketcher.Constraint("Horizontal", 1))
sketch11.addConstraint(Sketcher.Constraint("Vertical", 2))
sketch11.addConstraint(Sketcher.Constraint("Horizontal", 3))
sketch11.addConstraint(Sketcher.Constraint("Vertical", 5))
sketch11.addConstraint(Sketcher.Constraint("Symmetric", 0, 2, 3, 2, -2))
sketch11.addConstraint(Sketcher.Constraint("Symmetric", 2, 2, 4, 2, -2))
sketch11.addConstraint(Sketcher.Constraint("Perpendicular", 0, 4))
sketch11.addConstraint(Sketcher.Constraint("DistanceX", 2, 2, 4, 2, Q("41.5 in")))
sketch11.addConstraint(Sketcher.Constraint("DistanceX", 1, 1, 1, 2, Q("0.375 in")))
sketch11.addConstraint(Sketcher.Constraint("DistanceY", 2, 2, -1, 1, Q("20.75 in")))
sketch11.setExpression("Constraints[14]", "Params.sketch11_width")
pocket9 = body.newObject("PartDesign::Pocket", "Pocket008")
pocket9.Profile = sketch11
pocket9.Type = "ThroughAll"

# Sketch on XY plane
sketch12 = body.newObject("Sketcher::SketchObject", "Sketch011")
sketch12.AttachmentSupport = (doc.getObject("XY_Plane"), [""])
sketch12.MapMode = "FlatFace"
sketch12.AttachmentOffset = App.Placement(V(0, 0, -20.75 * 25.4), App.Rotation())
sketch12.addGeometry(Part.Circle(V(-304.8, 38.1, 0), V(0, 0, 1), 3.5687), False)
sketch12.addConstraint(Sketcher.Constraint("Diameter", 0, Q("0.281 in")))
sketch12.addConstraint(Sketcher.Constraint("DistanceX", 0, 3, -1, 1, Q("12 in")))
sketch12.addConstraint(Sketcher.Constraint("DistanceY", -1, 1, 0, 3, Q("1.5 in")))
sketch12.setExpression("Constraints[0]", "Params.sketch12_diameter")
doc.recompute()
hole = body.newObject("PartDesign::Hole", "Hole")
hole.Profile = sketch12
hole.ThreadType = "None"
hole.setExpression("Diameter", "Params.hole_diameter")
hole.DepthType = "ThroughAll"
hole.HoleCutType = "Countersink"
hole.setExpression("HoleCutDiameter", "Params.hole_csink_diameter")
hole.HoleCutCountersinkAngle = 82

# Sketch on XY plane
sketch13 = body.newObject("Sketcher::SketchObject", "Sketch012")
sketch13.AttachmentSupport = (doc.getObject("XY_Plane"), [""])
sketch13.MapMode = "FlatFace"
sketch13.AttachmentOffset = App.Placement(V(0, 0, -20.75 * 25.4), App.Rotation())
sketch13.addGeometry(Part.Circle(V(-101.6, 38.1, 0), V(0, 0, 1), 3.5687), False)
sketch13.addConstraint(Sketcher.Constraint("Diameter", 0, Q("0.281 in")))
sketch13.addConstraint(Sketcher.Constraint("DistanceX", 0, 3, -1, 1, Q("4 in")))
sketch13.addConstraint(Sketcher.Constraint("DistanceY", -1, 1, 0, 3, Q("1.5 in")))
sketch13.setExpression("Constraints[0]", "Params.sketch13_diameter")
doc.recompute()
hole2 = body.newObject("PartDesign::Hole", "Hole001")
hole2.Profile = sketch13
hole2.ThreadType = "None"
hole2.setExpression("Diameter", "Params.hole2_diameter")
hole2.DepthType = "ThroughAll"
hole2.HoleCutType = "Countersink"
hole2.setExpression("HoleCutDiameter", "Params.hole2_csink_diameter")
hole2.HoleCutCountersinkAngle = 82

# Sketch on XY plane
sketch14 = body.newObject("Sketcher::SketchObject", "Sketch013")
sketch14.AttachmentSupport = (doc.getObject("XY_Plane"), [""])
sketch14.MapMode = "FlatFace"
sketch14.AttachmentOffset = App.Placement(V(0, 0, -20.75 * 25.4), App.Rotation())
sketch14.addGeometry(Part.Circle(V(101.6, 38.1, 0), V(0, 0, 1), 3.5687), False)
sketch14.addConstraint(Sketcher.Constraint("Diameter", 0, Q("0.281 in")))
sketch14.addConstraint(Sketcher.Constraint("DistanceX", -1, 1, 0, 3, Q("4 in")))
sketch14.addConstraint(Sketcher.Constraint("DistanceY", -1, 1, 0, 3, Q("1.5 in")))
sketch14.setExpression("Constraints[0]", "Params.sketch14_diameter")
doc.recompute()
hole3 = body.newObject("PartDesign::Hole", "Hole002")
hole3.Profile = sketch14
hole3.ThreadType = "None"
hole3.setExpression("Diameter", "Params.hole3_diameter")
hole3.DepthType = "ThroughAll"
hole3.HoleCutType = "Countersink"
hole3.setExpression("HoleCutDiameter", "Params.hole3_csink_diameter")
hole3.HoleCutCountersinkAngle = 82

# Sketch on XY plane
sketch15 = body.newObject("Sketcher::SketchObject", "Sketch014")
sketch15.AttachmentSupport = (doc.getObject("XY_Plane"), [""])
sketch15.MapMode = "FlatFace"
sketch15.AttachmentOffset = App.Placement(V(0, 0, -20.75 * 25.4), App.Rotation())
sketch15.addGeometry(Part.Circle(V(304.8, 38.1, 0), V(0, 0, 1), 3.5687), False)
sketch15.addConstraint(Sketcher.Constraint("Diameter", 0, Q("0.281 in")))
sketch15.addConstraint(Sketcher.Constraint("DistanceX", -1, 1, 0, 3, Q("12 in")))
sketch15.addConstraint(Sketcher.Constraint("DistanceY", -1, 1, 0, 3, Q("1.5 in")))
sketch15.setExpression("Constraints[0]", "Params.sketch15_diameter")
doc.recompute()
hole4 = body.newObject("PartDesign::Hole", "Hole003")
hole4.Profile = sketch15
hole4.ThreadType = "None"
hole4.setExpression("Diameter", "Params.hole4_diameter")
hole4.DepthType = "ThroughAll"
hole4.HoleCutType = "Countersink"
hole4.setExpression("HoleCutDiameter", "Params.hole4_csink_diameter")
hole4.HoleCutCountersinkAngle = 82

# Sketch on XZ plane
sketch16 = body.newObject("Sketcher::SketchObject", "Sketch015")
sketch16.AttachmentSupport = (doc.getObject("XZ_Plane"), [""])
sketch16.MapMode = "FlatFace"
sketch16.AttachmentOffset = App.Placement(V(0, 0, -6 * 25.4), App.Rotation())
add_polygon(sketch16, [(-603.25, -603.25), (603.25, -603.25), (628.65, -628.65), (-628.65, -628.65)])  # lines 0-3
sketch16.addConstraint(Sketcher.Constraint("Horizontal", 0))
sketch16.addConstraint(Sketcher.Constraint("Horizontal", 2))
sketch16.addConstraint(Sketcher.Constraint("Perpendicular", 1, 3))
sketch16.addConstraint(Sketcher.Constraint("Equal", 1, 3))
sketch16.addConstraint(Sketcher.Constraint("DistanceX", 0, 1, 0, 2, Q("47.5 in")))
sketch16.addConstraint(Sketcher.Constraint("DistanceX", 2, 2, 2, 1, Q("49.5 in")))
sketch16.addConstraint(Sketcher.Constraint("DistanceX", -1, 1, 0, 2, Q("23.75 in")))
sketch16.addConstraint(Sketcher.Constraint("DistanceY", 0, 2, -1, 1, Q("23.75 in")))
sketch16.setExpression("Constraints[8]", "Params.sketch16_width")
sketch16.setExpression("Constraints[9]", "Params.sketch16_width2")
pad3 = body.newObject("PartDesign::Pad", "Pad002")
pad3.Profile = sketch16
pad3.setExpression("Length", "Params.pad3_length")

doc.recompute()
